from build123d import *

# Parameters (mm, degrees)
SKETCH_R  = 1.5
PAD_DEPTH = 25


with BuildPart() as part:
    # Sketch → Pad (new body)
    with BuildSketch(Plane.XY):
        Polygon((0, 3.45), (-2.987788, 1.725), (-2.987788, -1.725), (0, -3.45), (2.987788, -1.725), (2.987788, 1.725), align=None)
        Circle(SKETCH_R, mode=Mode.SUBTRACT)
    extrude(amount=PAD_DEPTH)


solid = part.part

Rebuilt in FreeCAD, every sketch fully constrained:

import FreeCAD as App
import Part
import Sketcher

V = App.Vector
Q = App.Units.Quantity

doc = App.newDocument("Part")
body = doc.addObject("PartDesign::Body", "Body")

# Sketch on XY plane
sketch1 = body.newObject("Sketcher::SketchObject", "Sketch")
sketch1.AttachmentSupport = (doc.getObject("XY_Plane"), [""])
sketch1.MapMode = "FlatFace"
sketch1.addGeometry([
    Part.LineSegment(V(0, 3.5, 0), V(-3, 1.7, 0)),  # 0
    Part.LineSegment(V(-3, 1.7, 0), V(-3, -1.7, 0)),  # 1
    Part.LineSegment(V(-3, -1.7, 0), V(0, -3.5, 0)),  # 2
    Part.LineSegment(V(0, -3.5, 0), V(3, -1.7, 0)),  # 3
    Part.LineSegment(V(3, -1.7, 0), V(3, 1.7, 0)),  # 4
    Part.LineSegment(V(3, 1.7, 0), V(0, 3.5, 0)),  # 5
    Part.Circle(V(0, 0, 0), V(0, 0, 1), 1.5),  # 6
], False)
sketch1.addConstraint([
    Sketcher.Constraint("Coincident", 0, 2, 1, 1),
    Sketcher.Constraint("Coincident", 1, 2, 2, 1),
    Sketcher.Constraint("Coincident", 2, 2, 3, 1),
    Sketcher.Constraint("Coincident", 3, 2, 4, 1),
    Sketcher.Constraint("Coincident", 4, 2, 5, 1),
    Sketcher.Constraint("Coincident", 5, 2, 0, 1),
    Sketcher.Constraint("Vertical", 1),
    Sketcher.Constraint("Vertical", 4),
    Sketcher.Constraint("Coincident", 6, 3, -1, 1),
    Sketcher.Constraint("Symmetric", 0, 2, 3, 2, -1, 1),
    Sketcher.Constraint("Symmetric", 2, 2, 5, 2, -1, 1),
    Sketcher.Constraint("PointOnObject", 2, 2, -2),
    Sketcher.Constraint("Parallel", 2, 5),
    Sketcher.Constraint("Horizontal", 1, 2, 3, 2),
    Sketcher.Constraint("Diameter", 6, Q("3 mm")),
    Sketcher.Constraint("Angle", 0, Q("-150.000003 deg")),
    Sketcher.Constraint("DistanceY", 1, 2, 1, 1, Q("3.45 mm")),
    Sketcher.Constraint("Distance", 0, Q("3.45 mm")),
])
pad1 = body.newObject("PartDesign::Pad", "Pad")
pad1.Profile = sketch1
pad1.Length = 25

doc.recompute()
